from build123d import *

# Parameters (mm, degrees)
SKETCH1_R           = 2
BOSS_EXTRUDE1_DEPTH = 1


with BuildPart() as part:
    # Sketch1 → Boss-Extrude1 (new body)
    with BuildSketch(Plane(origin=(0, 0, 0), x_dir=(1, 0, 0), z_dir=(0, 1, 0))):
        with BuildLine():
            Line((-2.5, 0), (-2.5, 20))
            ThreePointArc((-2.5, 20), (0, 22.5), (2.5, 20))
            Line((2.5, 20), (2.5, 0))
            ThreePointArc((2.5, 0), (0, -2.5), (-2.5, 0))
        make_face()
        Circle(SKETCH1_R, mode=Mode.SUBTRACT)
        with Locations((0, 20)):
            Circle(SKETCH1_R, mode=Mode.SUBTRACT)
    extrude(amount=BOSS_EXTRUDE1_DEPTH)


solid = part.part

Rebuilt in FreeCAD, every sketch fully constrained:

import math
import FreeCAD as App
import Part
import Sketcher
from FreeCAD import Vector
Q = App.Units.Quantity

doc = App.newDocument("Part")
body = doc.addObject("PartDesign::Body", "Body")

# Sketch on XZ plane
sketch1 = body.newObject("Sketcher::SketchObject", "Sketch")
sketch1.AttachmentSupport = (doc.getObject("XZ_Plane"), [""])
sketch1.MapMode = "FlatFace"
sketch1.addGeometry([
    Part.LineSegment(Vector(-2.5, -20, 0), Vector(-2.5, 0, 0)),  # 0
    Part.ArcOfCircle(Part.Circle(Vector(0, 0, 0), Vector(0, 0, 1), 2.5), math.radians(0), math.radians(180)),  # 1
    Part.LineSegment(Vector(2.5, 0, 0), Vector(2.5, -20, 0)),  # 2
    Part.ArcOfCircle(Part.Circle(Vector(0, -20, 0), Vector(0, 0, 1), 2.5), math.radians(180), math.radians(360)),  # 3
    Part.Circle(Vector(0, 0, 0), Vector(0, 0, 1), 2),  # 4
    Part.Circle(Vector(0, -20, 0), Vector(0, 0, 1), 2),  # 5
], False)
sketch1.addConstraint([
    Sketcher.Constraint("Tangent", 0, 2, 1, 2),
    Sketcher.Constraint("Tangent", 1, 1, 2, 1),
    Sketcher.Constraint("Tangent", 2, 2, 3, 2),
    Sketcher.Constraint("Tangent", 3, 1, 0, 1),
    Sketcher.Constraint("Vertical", 0),
    Sketcher.Constraint("Vertical", 2),
    Sketcher.Constraint("Coincident", 1, 3, -1, 1),
    Sketcher.Constraint("Coincident", 4, 3, -1, 1),
    Sketcher.Constraint("Coincident", 5, 3, 3, 3),
    Sketcher.Constraint("Equal", 4, 5),
    Sketcher.Constraint("Diameter", 4, Q("4 mm")),
    Sketcher.Constraint("Radius", 1, Q("2.5 mm")),
    Sketcher.Constraint("DistanceY", 0, 1, 0, 2, Q("20 mm")),
])
pad1 = body.newObject("PartDesign::Pad", "Pad")
pad1.Profile = sketch1
pad1.Length = 1
pad1.Reversed = True

doc.recompute()
